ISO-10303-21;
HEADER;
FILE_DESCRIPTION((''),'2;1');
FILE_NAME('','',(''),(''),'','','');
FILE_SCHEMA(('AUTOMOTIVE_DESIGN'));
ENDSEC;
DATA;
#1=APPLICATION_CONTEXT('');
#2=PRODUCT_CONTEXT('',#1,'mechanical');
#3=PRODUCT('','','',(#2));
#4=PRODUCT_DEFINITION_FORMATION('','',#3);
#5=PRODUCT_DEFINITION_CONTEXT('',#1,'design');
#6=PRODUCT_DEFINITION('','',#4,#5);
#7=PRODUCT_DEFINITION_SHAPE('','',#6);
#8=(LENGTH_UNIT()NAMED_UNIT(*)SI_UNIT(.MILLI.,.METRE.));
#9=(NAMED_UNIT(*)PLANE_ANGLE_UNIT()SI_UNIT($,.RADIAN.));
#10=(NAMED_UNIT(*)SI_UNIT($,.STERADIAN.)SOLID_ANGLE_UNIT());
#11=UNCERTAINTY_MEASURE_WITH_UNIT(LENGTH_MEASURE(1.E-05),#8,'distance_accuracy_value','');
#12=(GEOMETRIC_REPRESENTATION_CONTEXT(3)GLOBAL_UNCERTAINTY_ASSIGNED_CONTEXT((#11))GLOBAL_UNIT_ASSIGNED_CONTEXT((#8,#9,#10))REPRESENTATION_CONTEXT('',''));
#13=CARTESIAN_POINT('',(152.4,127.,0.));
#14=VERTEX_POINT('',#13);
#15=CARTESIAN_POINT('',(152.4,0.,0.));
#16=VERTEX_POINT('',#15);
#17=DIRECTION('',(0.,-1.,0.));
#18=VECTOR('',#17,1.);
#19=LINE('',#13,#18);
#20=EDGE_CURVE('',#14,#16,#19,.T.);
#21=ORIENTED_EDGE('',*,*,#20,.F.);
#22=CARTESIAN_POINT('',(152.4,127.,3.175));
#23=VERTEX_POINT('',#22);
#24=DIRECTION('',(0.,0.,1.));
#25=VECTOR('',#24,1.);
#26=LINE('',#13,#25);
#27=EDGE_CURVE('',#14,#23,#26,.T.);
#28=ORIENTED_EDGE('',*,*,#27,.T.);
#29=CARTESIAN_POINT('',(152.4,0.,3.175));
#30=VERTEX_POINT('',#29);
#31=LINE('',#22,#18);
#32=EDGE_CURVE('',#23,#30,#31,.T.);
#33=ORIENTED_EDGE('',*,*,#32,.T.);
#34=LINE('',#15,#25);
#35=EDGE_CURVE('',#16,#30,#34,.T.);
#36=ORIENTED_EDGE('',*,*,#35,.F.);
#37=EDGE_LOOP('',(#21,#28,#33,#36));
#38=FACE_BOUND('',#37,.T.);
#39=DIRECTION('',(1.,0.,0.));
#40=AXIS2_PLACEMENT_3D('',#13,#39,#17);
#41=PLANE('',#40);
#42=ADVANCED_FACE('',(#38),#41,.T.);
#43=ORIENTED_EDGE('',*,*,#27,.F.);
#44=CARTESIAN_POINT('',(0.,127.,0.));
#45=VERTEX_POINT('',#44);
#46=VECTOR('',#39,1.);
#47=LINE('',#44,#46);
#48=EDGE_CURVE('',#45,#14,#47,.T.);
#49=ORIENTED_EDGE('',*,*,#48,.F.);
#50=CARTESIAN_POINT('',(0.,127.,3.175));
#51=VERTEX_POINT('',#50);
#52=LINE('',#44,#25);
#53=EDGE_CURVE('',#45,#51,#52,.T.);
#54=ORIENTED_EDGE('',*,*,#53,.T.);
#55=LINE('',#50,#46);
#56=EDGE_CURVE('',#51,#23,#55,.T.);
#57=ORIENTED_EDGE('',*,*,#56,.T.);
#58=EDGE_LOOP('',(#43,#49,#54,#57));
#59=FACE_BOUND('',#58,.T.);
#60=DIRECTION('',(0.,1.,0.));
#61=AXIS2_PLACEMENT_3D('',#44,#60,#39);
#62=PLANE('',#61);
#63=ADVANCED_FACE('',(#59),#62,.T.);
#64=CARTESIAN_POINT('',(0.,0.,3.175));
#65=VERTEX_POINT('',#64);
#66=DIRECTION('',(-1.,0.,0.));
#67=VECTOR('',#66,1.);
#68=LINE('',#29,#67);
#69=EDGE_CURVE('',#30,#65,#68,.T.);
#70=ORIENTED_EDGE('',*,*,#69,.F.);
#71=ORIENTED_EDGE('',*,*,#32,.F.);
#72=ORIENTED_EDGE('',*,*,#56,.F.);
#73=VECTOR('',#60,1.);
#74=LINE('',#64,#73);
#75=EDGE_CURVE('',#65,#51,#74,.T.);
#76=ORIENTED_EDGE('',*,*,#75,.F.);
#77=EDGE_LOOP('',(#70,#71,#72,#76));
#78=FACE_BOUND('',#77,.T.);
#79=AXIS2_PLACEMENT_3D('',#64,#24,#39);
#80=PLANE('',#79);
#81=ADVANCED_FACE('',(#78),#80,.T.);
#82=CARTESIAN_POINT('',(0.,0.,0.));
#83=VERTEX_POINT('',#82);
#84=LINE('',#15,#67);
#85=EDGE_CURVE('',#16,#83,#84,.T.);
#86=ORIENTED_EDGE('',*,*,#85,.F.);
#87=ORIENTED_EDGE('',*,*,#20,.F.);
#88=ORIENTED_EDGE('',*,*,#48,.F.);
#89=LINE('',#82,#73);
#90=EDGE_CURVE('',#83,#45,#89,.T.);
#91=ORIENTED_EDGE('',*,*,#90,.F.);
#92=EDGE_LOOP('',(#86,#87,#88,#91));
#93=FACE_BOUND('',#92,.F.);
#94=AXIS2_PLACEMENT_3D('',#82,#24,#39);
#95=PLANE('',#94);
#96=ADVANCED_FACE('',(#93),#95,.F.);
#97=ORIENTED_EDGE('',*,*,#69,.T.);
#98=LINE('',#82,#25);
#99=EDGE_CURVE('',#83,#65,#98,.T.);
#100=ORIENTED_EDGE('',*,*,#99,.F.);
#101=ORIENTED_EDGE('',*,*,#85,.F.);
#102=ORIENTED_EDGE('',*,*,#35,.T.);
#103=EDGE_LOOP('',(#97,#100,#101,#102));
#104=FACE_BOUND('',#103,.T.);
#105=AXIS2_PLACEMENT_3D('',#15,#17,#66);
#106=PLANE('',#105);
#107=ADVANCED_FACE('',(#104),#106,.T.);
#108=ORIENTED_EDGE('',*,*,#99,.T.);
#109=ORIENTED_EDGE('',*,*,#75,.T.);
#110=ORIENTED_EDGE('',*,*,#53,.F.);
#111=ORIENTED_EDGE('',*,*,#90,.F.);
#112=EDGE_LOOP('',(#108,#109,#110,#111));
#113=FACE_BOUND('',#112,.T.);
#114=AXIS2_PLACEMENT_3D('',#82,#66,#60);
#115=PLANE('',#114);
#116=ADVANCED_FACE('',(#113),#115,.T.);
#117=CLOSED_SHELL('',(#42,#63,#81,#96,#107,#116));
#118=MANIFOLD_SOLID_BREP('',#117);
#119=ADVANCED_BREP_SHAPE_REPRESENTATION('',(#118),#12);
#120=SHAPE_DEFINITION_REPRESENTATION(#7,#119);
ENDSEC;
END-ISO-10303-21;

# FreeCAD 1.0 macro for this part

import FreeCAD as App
import Part
import Sketcher

V = App.Vector
Q = App.Units.Quantity

doc = App.newDocument("Part")
body = doc.addObject("PartDesign::Body", "Body")

# Sketch on XY plane
sketch1 = doc.addObject("Sketcher::SketchObject", "Sketch")
body.addObject(sketch1)
sketch1.AttachmentSupport = (doc.XY_Plane, [""])
sketch1.MapMode = "FlatFace"
sketch1.addGeometry([
    Part.LineSegment(V(0, 127, 0), V(0, 0, 0)),
    Part.LineSegment(V(0, 0, 0), V(152, 0, 0)),
    Part.LineSegment(V(152, 0, 0), V(152, 127, 0)),
    Part.LineSegment(V(152, 127, 0), V(0, 127, 0)),
], False)
sketch1.addConstraint([
    Sketcher.Constraint("Coincident", 0, 2, 1, 1),
    Sketcher.Constraint("Coincident", 1, 2, 2, 1),
    Sketcher.Constraint("Coincident", 2, 2, 3, 1),
    Sketcher.Constraint("Coincident", 3, 2, 0, 1),
    Sketcher.Constraint("Vertical", 0),
    Sketcher.Constraint("Horizontal", 1),
    Sketcher.Constraint("Vertical", 2),
    Sketcher.Constraint("Horizontal", 3),
    Sketcher.Constraint("Coincident", 0, 2, -1, 1),
    Sketcher.Constraint("DistanceX", 1, 1, 1, 2, Q("6 in")),
    Sketcher.Constraint("DistanceY", 0, 2, 0, 1, Q("5 in")),
])
pad1 = doc.addObject("PartDesign::Pad", "Pad")
body.addObject(pad1)
pad1.Profile = sketch1
pad1.Length = Q("0.125 in")

doc.recompute()
